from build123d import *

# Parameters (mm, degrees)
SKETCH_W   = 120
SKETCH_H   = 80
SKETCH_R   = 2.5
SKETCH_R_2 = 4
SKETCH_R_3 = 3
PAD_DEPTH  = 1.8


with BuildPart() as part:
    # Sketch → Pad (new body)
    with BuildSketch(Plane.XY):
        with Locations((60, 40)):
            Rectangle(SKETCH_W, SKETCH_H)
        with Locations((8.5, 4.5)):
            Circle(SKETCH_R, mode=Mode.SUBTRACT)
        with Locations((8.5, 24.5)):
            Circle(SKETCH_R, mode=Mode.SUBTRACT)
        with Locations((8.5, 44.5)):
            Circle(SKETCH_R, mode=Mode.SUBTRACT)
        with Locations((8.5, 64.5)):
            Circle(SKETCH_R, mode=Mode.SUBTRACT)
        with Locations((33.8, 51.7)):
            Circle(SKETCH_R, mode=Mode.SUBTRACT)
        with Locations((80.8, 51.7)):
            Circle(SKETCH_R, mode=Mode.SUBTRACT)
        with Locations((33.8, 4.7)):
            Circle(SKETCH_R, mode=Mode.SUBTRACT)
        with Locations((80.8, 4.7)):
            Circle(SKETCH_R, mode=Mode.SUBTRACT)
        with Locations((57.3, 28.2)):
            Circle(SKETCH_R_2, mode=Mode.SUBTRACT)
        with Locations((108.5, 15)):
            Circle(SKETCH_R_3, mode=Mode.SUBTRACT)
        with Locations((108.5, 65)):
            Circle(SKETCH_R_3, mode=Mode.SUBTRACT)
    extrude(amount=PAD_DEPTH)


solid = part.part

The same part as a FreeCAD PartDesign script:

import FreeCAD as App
import Part
import Sketcher

V = App.Vector


def add_polygon(sketch, points):
    """Adds a closed chain of lines whose ends are joined by coincident constraints."""
    first, n = sketch.GeometryCount, len(points)
    for a, b in zip(points, points[1:] + points[:1]):
        sketch.addGeometry(Part.LineSegment(App.Vector(*a, 0), App.Vector(*b, 0)), False)
    for i in range(n):
        sketch.addConstraint(Sketcher.Constraint("Coincident", first + i, 2, first + (i + 1) % n, 1))

doc = App.newDocument("Part")
body = doc.addObject("PartDesign::Body", "Body")

# Sketch on XY plane
sketch1 = body.newObject("Sketcher::SketchObject", "Sketch")
sketch1.AttachmentSupport = (doc.getObject("XY_Plane"), [""])
sketch1.MapMode = "FlatFace"
add_polygon(sketch1, [(0, 80), (0, 0), (120, 0), (120, 80)])  # lines 0-3
sketch1.addGeometry(Part.Circle(V(8.5, 4.5, 0), V(0, 0, 1), 2.5), False)  # 4
sketch1.addGeometry(Part.Circle(V(33.8, 4.7, 0), V(0, 0, 1), 2.5), False)  # 5
sketch1.addGeometry(Part.Circle(V(8.5, 24.5, 0), V(0, 0, 1), 2.5), False)  # 6
sketch1.addGeometry(Part.Circle(V(57.3, 28.2, 0), V(0, 0, 1), 4), False)  # 7
sketch1.addGeometry(Part.Circle(V(80.8, 4.7, 0), V(0, 0, 1), 2.5), False)  # 8
sketch1.addGeometry(Part.Circle(V(108.5, 15, 0), V(0, 0, 1), 3), False)  # 9
sketch1.addGeometry(Part.Circle(V(8.5, 44.5, 0), V(0, 0, 1), 2.5), False)  # 10
sketch1.addGeometry(Part.Circle(V(8.5, 64.5, 0), V(0, 0, 1), 2.5), False)  # 11
sketch1.addGeometry(Part.Circle(V(33.8, 51.7, 0), V(0, 0, 1), 2.5), False)  # 12
sketch1.addGeometry(Part.Circle(V(80.8, 51.7, 0), V(0, 0, 1), 2.5), False)  # 13
sketch1.addGeometry(Part.Circle(V(108.5, 65, 0), V(0, 0, 1), 3), False)  # 14
sketch1.addConstraint([
    Sketcher.Constraint("Vertical", 0),
    Sketcher.Constraint("Horizontal", 1),
    Sketcher.Constraint("Vertical", 2),
    Sketcher.Constraint("Horizontal", 3),
    Sketcher.Constraint("Coincident", 0, 2, -1, 1),
    Sketcher.Constraint("Equal", 4, 5),
    Sketcher.Constraint("Equal", 5, 6),
    Sketcher.Constraint("Equal", 6, 8),
    Sketcher.Constraint("Equal", 8, 10),
    Sketcher.Constraint("Equal", 10, 11),
    Sketcher.Constraint("Equal", 11, 12),
    Sketcher.Constraint("Equal", 12, 13),
    Sketcher.Constraint("Equal", 9, 14),
    Sketcher.Constraint("Horizontal", 5, 3, 8, 3),
    Sketcher.Constraint("Horizontal", 12, 3, 13, 3),
    Sketcher.Constraint("Vertical", 4, 3, 6, 3),
    Sketcher.Constraint("Vertical", 6, 3, 10, 3),
    Sketcher.Constraint("Vertical", 10, 3, 11, 3),
    Sketcher.Constraint("Vertical", 5, 3, 12, 3),
    Sketcher.Constraint("Vertical", 8, 3, 13, 3),
    Sketcher.Constraint("Vertical", 9, 3, 14, 3),
    Sketcher.Constraint("Diameter", 4, 5.0),
    Sketcher.Constraint("Diameter", 7, 8.0),
    Sketcher.Constraint("Diameter", 9, 6.0),
    Sketcher.Constraint("DistanceX", 1, 1, 1, 2, 120.0),
    Sketcher.Constraint("DistanceY", 0, 2, 0, 1, 80.0),
    Sketcher.Constraint("DistanceY", -1, 1, 9, 3, 15.0),
    Sketcher.Constraint("DistanceY", -1, 1, 14, 3, 65.0),
    Sketcher.Constraint("DistanceY", 4, 3, 6, 3, 20.0),
    Sketcher.Constraint("DistanceX", 5, 3, 8, 3, 47.0),
    Sketcher.Constraint("DistanceX", 6, 3, 9, 3, 100.0),
    Sketcher.Constraint("DistanceY", 6, 3, 10, 3, 20.0),
    Sketcher.Constraint("DistanceY", 10, 3, 11, 3, 20.0),
    Sketcher.Constraint("DistanceY", 5, 3, 12, 3, 47.0),
    Sketcher.Constraint("DistanceX", -1, 1, 4, 3, 8.5),
    Sketcher.Constraint("DistanceY", -1, 1, 4, 3, 4.5),
    Sketcher.Constraint("DistanceX", -1, 1, 5, 3, 33.8),
    Sketcher.Constraint("DistanceY", -1, 1, 5, 3, 4.7),
    Sketcher.Constraint("DistanceX", -1, 1, 7, 3, 57.3),
    Sketcher.Constraint("DistanceY", -1, 1, 7, 3, 28.2),
])
pad1 = body.newObject("PartDesign::Pad", "Pad")
pad1.Profile = sketch1
pad1.Length = 1.8

doc.recompute()
